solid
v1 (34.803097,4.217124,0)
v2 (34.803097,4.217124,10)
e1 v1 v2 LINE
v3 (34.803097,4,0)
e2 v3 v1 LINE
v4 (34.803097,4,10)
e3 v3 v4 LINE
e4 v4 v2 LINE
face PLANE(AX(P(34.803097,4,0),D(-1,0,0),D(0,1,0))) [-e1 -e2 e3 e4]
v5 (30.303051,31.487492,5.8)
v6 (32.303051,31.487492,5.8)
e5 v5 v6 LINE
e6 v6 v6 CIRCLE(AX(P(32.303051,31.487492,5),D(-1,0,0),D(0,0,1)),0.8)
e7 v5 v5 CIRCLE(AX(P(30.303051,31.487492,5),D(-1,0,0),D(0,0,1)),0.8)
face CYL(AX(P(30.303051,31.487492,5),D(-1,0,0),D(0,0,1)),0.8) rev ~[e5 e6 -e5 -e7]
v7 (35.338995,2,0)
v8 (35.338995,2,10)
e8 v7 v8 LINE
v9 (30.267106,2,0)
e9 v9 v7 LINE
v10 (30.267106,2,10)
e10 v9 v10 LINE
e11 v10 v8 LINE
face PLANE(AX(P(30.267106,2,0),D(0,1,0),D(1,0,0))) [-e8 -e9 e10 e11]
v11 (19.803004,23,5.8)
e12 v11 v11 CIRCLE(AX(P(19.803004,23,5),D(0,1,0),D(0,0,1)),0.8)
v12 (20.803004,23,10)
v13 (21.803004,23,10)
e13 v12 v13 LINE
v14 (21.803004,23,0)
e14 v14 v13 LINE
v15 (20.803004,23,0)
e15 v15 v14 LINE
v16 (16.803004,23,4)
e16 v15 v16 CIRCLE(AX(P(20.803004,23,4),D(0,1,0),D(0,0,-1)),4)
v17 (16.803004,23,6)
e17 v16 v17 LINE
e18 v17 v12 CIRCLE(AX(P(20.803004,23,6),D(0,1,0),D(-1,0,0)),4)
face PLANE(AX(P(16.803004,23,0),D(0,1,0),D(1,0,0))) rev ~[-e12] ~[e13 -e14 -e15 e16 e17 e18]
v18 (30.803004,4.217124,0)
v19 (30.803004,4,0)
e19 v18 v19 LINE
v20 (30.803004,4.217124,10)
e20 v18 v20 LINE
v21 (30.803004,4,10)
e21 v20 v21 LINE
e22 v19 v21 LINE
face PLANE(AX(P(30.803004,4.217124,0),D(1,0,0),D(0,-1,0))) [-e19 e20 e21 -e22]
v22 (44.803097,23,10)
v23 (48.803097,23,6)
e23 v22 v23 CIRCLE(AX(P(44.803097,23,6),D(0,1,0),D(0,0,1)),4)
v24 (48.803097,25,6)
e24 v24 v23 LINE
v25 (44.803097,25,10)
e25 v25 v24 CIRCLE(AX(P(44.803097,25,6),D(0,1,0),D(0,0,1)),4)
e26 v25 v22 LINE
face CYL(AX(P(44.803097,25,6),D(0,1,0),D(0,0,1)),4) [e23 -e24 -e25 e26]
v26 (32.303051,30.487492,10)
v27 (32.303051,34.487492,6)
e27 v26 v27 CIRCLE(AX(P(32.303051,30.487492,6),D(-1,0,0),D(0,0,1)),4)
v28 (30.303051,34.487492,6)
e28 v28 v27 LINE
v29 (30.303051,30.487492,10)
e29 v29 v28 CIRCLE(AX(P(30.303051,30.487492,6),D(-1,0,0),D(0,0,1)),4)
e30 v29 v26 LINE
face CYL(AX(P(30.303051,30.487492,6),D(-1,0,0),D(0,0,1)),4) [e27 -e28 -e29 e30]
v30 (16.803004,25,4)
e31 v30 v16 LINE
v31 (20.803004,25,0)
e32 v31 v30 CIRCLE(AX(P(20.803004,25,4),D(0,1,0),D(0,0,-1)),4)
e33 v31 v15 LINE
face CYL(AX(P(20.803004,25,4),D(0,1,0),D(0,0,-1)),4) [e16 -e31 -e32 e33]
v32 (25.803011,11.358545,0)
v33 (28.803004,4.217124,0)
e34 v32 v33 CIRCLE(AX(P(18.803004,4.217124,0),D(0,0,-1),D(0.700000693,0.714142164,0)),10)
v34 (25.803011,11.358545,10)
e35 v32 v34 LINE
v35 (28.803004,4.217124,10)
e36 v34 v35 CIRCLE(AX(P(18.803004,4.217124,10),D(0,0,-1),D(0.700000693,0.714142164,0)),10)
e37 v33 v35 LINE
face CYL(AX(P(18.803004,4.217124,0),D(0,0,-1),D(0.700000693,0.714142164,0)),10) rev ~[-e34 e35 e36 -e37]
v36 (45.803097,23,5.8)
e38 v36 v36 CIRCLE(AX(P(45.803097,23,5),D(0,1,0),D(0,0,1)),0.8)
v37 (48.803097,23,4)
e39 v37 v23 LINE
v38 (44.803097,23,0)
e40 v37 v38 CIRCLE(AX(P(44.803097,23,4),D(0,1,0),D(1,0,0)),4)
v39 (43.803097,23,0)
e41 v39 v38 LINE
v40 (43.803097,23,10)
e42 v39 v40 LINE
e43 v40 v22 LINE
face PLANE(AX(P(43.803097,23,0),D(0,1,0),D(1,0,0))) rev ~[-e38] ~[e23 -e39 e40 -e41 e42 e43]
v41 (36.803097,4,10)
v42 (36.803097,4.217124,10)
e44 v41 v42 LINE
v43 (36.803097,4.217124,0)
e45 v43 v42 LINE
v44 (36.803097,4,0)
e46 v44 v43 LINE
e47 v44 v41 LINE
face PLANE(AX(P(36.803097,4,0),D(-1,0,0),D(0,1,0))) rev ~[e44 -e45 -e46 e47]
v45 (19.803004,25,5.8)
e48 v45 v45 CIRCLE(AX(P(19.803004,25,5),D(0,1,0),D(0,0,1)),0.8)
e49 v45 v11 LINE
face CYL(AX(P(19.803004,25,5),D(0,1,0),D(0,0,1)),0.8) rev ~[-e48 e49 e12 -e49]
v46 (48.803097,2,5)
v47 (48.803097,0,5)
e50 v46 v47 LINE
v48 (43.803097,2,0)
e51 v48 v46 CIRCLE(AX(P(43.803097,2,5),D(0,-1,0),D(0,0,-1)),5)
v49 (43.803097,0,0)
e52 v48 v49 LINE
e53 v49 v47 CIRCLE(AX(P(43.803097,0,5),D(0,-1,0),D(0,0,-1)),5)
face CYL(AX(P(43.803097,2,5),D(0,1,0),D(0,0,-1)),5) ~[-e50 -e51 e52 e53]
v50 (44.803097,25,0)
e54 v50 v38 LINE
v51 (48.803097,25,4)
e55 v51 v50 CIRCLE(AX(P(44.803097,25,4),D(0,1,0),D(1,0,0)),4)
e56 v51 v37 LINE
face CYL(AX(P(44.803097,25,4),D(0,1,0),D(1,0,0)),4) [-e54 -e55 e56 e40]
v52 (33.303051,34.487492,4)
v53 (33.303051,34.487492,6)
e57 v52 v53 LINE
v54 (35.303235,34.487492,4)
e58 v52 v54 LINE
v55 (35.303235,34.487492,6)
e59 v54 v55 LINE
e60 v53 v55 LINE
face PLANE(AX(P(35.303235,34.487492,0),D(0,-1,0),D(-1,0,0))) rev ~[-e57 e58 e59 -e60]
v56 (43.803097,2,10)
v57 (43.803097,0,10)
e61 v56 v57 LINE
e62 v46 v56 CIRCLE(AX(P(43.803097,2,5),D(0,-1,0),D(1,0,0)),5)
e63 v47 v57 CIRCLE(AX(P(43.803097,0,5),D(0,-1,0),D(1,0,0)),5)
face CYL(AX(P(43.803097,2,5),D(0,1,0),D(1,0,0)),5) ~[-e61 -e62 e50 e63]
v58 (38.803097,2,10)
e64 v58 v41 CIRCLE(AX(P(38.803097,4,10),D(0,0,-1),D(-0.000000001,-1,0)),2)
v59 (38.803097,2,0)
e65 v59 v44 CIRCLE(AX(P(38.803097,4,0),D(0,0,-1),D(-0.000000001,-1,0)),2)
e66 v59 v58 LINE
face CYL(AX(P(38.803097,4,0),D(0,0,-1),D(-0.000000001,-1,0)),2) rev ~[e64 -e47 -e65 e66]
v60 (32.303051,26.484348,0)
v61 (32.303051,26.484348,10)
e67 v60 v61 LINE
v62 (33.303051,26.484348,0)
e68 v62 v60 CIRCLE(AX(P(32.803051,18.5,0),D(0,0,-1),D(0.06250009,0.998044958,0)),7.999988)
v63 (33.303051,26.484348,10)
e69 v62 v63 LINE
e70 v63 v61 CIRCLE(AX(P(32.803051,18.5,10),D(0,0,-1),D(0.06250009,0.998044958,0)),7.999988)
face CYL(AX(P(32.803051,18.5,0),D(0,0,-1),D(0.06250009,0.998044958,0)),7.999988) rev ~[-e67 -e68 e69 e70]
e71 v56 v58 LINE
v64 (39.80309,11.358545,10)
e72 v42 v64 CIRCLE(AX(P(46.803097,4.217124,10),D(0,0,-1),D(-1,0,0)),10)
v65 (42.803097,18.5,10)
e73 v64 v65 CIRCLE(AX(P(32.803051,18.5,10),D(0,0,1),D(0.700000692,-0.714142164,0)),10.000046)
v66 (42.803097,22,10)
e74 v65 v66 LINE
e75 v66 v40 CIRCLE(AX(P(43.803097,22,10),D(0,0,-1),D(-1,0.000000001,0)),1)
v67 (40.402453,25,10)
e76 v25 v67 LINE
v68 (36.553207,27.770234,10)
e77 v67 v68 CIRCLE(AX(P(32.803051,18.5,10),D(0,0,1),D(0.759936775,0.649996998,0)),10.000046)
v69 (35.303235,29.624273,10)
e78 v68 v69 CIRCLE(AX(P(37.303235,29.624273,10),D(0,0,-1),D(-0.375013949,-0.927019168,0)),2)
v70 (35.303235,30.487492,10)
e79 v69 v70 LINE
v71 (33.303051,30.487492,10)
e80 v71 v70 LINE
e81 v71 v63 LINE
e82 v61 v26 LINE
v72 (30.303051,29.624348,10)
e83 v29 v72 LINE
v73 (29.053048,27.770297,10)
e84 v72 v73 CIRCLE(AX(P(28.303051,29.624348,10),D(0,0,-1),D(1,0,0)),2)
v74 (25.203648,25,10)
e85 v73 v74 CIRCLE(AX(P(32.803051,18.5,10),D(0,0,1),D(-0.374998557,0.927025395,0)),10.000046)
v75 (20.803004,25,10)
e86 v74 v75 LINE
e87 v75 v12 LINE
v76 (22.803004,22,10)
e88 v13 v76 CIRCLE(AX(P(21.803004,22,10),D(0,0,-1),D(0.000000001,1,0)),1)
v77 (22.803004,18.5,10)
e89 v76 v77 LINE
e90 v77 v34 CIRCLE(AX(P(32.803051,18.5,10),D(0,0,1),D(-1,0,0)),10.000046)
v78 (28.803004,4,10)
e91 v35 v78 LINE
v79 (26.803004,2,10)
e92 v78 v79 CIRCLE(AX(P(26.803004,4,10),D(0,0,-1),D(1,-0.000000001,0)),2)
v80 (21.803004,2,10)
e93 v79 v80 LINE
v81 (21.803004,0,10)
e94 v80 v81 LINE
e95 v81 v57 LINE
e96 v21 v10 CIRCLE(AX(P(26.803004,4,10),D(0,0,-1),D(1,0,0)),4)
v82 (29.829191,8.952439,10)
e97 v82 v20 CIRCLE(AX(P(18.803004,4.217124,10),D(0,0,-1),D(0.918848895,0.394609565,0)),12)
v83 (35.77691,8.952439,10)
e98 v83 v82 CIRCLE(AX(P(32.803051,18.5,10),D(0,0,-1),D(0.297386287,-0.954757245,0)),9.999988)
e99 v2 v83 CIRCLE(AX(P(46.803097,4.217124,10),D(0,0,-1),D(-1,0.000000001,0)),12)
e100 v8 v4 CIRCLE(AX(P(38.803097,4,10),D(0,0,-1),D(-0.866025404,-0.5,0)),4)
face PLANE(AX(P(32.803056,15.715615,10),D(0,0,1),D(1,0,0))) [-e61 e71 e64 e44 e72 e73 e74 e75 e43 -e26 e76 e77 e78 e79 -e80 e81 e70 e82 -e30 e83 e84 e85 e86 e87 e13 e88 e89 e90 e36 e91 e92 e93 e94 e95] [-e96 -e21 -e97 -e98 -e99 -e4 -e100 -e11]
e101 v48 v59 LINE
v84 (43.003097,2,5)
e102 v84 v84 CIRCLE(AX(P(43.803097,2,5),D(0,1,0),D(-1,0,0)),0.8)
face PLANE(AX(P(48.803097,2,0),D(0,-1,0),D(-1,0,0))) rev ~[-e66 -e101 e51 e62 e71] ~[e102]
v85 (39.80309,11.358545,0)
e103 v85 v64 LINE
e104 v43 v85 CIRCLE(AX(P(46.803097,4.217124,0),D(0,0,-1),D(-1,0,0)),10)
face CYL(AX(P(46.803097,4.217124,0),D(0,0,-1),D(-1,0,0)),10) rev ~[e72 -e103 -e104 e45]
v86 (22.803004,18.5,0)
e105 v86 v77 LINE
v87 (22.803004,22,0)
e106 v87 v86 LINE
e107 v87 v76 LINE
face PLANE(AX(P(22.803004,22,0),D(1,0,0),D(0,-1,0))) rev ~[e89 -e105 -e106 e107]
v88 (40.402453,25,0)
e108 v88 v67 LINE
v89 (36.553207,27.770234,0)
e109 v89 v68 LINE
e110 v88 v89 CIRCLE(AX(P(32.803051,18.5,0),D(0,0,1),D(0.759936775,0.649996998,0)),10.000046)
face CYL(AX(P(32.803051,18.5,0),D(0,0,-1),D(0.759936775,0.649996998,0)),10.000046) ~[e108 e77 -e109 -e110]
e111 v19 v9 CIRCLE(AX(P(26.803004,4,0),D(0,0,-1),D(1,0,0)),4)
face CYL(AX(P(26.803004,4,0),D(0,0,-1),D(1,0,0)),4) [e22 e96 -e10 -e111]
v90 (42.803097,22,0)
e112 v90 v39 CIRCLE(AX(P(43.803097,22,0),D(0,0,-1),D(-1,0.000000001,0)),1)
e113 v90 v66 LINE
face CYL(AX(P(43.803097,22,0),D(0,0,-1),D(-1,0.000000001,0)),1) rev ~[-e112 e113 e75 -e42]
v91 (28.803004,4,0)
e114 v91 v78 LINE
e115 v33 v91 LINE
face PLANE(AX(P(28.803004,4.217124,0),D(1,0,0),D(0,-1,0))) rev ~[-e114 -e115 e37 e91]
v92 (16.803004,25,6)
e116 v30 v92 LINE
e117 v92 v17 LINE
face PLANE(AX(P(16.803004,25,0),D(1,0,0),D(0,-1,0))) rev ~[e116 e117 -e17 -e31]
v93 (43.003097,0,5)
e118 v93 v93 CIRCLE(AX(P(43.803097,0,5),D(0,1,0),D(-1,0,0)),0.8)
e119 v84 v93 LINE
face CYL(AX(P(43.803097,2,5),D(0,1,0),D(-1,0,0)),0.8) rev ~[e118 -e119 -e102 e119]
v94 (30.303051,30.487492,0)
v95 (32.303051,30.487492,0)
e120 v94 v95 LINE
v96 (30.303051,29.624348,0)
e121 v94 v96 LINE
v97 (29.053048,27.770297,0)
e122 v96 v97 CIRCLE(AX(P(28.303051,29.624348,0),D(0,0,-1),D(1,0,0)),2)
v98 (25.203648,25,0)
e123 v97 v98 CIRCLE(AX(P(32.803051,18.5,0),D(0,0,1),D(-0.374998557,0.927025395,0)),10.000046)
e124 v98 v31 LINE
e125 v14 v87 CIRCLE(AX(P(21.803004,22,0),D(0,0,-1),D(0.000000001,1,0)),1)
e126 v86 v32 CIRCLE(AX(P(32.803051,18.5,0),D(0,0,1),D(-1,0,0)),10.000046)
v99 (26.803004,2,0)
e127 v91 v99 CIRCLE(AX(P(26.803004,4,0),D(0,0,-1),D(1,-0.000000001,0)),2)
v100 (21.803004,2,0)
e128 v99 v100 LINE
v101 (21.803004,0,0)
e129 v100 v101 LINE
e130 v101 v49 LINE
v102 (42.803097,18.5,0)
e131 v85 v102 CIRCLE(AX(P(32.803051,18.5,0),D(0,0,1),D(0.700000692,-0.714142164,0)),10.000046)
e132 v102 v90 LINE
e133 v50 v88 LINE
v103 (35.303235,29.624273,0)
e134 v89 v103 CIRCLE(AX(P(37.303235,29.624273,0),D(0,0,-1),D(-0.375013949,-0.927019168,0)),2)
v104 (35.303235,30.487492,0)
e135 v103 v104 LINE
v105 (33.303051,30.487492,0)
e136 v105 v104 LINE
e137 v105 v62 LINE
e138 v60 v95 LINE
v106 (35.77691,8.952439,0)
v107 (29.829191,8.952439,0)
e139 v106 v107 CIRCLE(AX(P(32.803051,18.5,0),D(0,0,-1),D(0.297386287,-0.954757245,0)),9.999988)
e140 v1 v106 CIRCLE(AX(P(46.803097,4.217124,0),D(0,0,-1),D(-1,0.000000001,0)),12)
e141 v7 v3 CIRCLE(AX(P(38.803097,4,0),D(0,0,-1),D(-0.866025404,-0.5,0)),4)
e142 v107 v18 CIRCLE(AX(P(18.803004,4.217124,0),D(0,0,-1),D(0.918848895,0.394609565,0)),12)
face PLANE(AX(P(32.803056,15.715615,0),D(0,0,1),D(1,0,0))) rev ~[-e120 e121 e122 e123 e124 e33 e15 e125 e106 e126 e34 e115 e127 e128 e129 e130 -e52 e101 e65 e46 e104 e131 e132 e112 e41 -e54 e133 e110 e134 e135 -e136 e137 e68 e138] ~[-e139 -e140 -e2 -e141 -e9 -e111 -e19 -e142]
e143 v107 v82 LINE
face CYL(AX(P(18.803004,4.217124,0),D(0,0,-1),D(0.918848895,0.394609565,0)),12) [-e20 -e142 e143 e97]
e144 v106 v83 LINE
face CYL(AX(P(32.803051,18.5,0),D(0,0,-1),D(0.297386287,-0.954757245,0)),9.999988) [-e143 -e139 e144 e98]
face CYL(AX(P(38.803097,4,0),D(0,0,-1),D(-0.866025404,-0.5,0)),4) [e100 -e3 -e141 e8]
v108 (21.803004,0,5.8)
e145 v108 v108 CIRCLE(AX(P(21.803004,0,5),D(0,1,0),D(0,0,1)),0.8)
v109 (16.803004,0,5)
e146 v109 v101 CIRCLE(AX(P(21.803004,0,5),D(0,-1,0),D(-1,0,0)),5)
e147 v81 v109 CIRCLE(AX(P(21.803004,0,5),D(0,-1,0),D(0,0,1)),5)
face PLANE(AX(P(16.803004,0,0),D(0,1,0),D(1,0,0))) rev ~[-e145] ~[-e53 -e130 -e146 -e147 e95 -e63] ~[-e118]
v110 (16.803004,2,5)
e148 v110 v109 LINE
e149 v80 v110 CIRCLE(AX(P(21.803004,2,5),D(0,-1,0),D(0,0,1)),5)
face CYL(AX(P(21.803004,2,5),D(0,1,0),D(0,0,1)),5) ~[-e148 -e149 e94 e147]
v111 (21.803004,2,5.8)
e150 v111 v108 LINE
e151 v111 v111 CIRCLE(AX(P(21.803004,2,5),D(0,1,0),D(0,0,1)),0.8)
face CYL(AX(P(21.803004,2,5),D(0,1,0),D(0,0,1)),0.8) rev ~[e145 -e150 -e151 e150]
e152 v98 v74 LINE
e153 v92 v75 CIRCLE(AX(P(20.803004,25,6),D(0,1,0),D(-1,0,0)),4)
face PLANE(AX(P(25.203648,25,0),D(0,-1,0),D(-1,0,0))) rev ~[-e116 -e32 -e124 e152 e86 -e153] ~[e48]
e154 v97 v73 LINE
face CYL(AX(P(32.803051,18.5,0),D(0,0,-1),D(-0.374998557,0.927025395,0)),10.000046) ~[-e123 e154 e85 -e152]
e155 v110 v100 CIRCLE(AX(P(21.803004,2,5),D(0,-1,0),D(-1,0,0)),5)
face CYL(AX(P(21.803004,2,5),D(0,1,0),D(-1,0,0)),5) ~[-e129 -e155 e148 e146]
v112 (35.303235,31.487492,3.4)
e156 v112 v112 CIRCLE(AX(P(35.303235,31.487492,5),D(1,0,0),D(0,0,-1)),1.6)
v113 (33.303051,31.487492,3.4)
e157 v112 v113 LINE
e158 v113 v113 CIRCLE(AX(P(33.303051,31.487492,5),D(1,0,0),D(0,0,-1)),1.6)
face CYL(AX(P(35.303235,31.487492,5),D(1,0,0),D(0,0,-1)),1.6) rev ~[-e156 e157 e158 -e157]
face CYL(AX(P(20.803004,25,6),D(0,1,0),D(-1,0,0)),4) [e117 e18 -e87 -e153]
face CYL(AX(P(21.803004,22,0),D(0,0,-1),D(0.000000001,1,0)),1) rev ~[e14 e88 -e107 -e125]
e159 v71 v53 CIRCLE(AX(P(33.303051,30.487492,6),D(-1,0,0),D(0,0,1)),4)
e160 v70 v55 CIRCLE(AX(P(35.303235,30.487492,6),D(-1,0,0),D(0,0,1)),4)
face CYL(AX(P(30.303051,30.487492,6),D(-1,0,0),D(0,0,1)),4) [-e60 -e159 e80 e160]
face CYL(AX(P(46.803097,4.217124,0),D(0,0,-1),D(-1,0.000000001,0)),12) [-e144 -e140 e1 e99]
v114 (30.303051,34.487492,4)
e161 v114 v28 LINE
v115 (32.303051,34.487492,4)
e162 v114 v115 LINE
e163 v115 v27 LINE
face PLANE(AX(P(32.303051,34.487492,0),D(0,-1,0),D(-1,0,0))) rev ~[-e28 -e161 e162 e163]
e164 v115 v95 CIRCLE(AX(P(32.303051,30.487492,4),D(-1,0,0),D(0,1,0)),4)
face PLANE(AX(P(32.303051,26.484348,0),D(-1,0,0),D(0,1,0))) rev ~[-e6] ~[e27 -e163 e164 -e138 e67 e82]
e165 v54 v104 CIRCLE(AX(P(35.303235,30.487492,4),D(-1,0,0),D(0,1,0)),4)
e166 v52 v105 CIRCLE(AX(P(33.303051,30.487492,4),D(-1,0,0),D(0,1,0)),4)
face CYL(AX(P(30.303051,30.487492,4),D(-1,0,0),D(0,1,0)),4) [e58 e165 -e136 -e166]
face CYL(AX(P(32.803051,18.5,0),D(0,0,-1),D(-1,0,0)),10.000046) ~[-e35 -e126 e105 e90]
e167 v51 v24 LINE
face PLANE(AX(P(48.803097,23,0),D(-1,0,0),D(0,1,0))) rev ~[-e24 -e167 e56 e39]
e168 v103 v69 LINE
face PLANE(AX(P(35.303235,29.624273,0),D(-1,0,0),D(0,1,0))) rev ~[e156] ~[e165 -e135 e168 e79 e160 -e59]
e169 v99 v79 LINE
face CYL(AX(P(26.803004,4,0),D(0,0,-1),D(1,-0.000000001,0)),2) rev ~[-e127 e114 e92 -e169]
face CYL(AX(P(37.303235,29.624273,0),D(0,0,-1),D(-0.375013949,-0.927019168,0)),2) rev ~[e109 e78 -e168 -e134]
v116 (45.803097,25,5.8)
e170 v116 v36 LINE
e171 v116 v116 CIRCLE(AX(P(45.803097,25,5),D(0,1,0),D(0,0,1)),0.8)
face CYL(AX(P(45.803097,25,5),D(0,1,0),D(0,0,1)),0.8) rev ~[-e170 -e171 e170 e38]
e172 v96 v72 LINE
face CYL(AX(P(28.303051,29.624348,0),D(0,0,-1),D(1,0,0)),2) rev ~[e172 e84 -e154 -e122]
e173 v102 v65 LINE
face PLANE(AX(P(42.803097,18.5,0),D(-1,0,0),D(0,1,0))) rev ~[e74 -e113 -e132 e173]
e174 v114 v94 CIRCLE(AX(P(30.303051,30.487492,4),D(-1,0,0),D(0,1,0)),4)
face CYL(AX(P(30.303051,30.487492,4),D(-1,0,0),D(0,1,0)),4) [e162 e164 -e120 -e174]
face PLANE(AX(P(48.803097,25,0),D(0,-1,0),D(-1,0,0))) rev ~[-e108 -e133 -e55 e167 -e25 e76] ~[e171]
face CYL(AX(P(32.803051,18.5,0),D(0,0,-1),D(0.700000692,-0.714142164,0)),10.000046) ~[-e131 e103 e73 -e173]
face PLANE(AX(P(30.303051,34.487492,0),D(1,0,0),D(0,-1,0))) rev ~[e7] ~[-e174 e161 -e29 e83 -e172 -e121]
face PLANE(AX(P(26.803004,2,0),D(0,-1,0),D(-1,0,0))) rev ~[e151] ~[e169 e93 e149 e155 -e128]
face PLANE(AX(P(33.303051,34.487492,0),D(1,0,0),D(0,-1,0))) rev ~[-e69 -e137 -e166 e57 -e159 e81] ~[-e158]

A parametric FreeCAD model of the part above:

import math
import FreeCAD as App
import Part
import Sketcher

V = App.Vector
Q = App.Units.Quantity

doc = App.newDocument("Part")
body = doc.addObject("PartDesign::Body", "Body")

# Sketch on XY plane
sketch1 = body.newObject("Sketcher::SketchObject", "Sketch")
sketch1.AttachmentSupport = (doc.getObject("XY_Plane"), [""])
sketch1.MapMode = "FlatFace"
sketch1.addGeometry([
    Part.LineSegment(V(16.8, 0, 0), V(48.8, 0, 0)),  # 0
    Part.LineSegment(V(48.8, 0, 0), V(48.8, 2, 0)),  # 1
    Part.LineSegment(V(48.8, 2, 0), V(38.8, 2, 0)),  # 2
    Part.ArcOfCircle(Part.Circle(V(38.8, 4, 0), V(0, 0, 1), 2), math.radians(-180), math.radians(-90)),  # 3
    Part.LineSegment(V(36.8, 4, 0), V(36.8, 4.22, 0)),  # 4
    Part.ArcOfCircle(Part.Circle(V(46.8, 4.22, 0), V(0, 0, 1), 10), math.radians(134), math.radians(180)),  # 5
    Part.ArcOfCircle(Part.Circle(V(32.8, 18.5, 0), V(0, 0, 1), 10), math.radians(-46), math.radians(0)),  # 6
    Part.LineSegment(V(42.8, 18.5, 0), V(42.8, 22, 0)),  # 7
    Part.ArcOfCircle(Part.Circle(V(43.8, 22, 0), V(0, 0, 1), 1), math.radians(90), math.radians(180)),  # 8
    Part.LineSegment(V(43.8, 23, 0), V(48.8, 23, 0)),  # 9
    Part.LineSegment(V(48.8, 23, 0), V(48.8, 25, 0)),  # 10
    Part.LineSegment(V(48.8, 25, 0), V(40.4, 25, 0)),  # 11
    Part.ArcOfCircle(Part.Circle(V(32.8, 18.5, 0), V(0, 0, 1), 10), math.radians(41), math.radians(68)),  # 12
    Part.ArcOfCircle(Part.Circle(V(37.3, 29.62, 0), V(0, 0, 1), 2), math.radians(180), math.radians(248)),  # 13
    Part.LineSegment(V(35.3, 29.62, 0), V(35.3, 34.49, 0)),  # 14
    Part.LineSegment(V(35.3, 34.49, 0), V(33.3, 34.49, 0)),  # 15
    Part.LineSegment(V(33.3, 34.49, 0), V(33.3, 26.48, 0)),  # 16
    Part.ArcOfCircle(Part.Circle(V(32.8, 18.5, 0), V(0, 0, 1), 8), math.radians(94), math.radians(446)),  # 17
    Part.LineSegment(V(32.3, 26.48, 0), V(32.3, 34.49, 0)),  # 18
    Part.LineSegment(V(32.3, 34.49, 0), V(30.3, 34.49, 0)),  # 19
    Part.LineSegment(V(30.3, 34.49, 0), V(30.3, 29.62, 0)),  # 20
    Part.ArcOfCircle(Part.Circle(V(28.3, 29.62, 0), V(0, 0, 1), 2), math.radians(-68), math.radians(0)),  # 21
    Part.ArcOfCircle(Part.Circle(V(32.8, 18.5, 0), V(0, 0, 1), 10), math.radians(112), math.radians(139)),  # 22
    Part.LineSegment(V(25.2, 25, 0), V(16.8, 25, 0)),  # 23
    Part.LineSegment(V(16.8, 25, 0), V(16.8, 23, 0)),  # 24
    Part.LineSegment(V(16.8, 23, 0), V(21.8, 23, 0)),  # 25
    Part.ArcOfCircle(Part.Circle(V(21.8, 22, 0), V(0, 0, 1), 1), math.radians(0), math.radians(90)),  # 26
    Part.LineSegment(V(22.8, 22, 0), V(22.8, 18.5, 0)),  # 27
    Part.ArcOfCircle(Part.Circle(V(32.8, 18.5, 0), V(0, 0, 1), 10), math.radians(180), math.radians(226)),  # 28
    Part.ArcOfCircle(Part.Circle(V(18.8, 4.22, 0), V(0, 0, 1), 10), math.radians(0), math.radians(46)),  # 29
    Part.LineSegment(V(28.8, 4.22, 0), V(28.8, 4, 0)),  # 30
    Part.ArcOfCircle(Part.Circle(V(26.8, 4, 0), V(0, 0, 1), 2), math.radians(-90), math.radians(0)),  # 31
    Part.LineSegment(V(26.8, 2, 0), V(16.8, 2, 0)),  # 32
    Part.LineSegment(V(16.8, 2, 0), V(16.8, 0, 0)),  # 33
    Part.LineSegment(V(34.8, 4.22, 0), V(34.8, 4, 0)),  # 34
    Part.ArcOfCircle(Part.Circle(V(38.8, 4, 0), V(0, 0, 1), 4), math.radians(-180), math.radians(-150)),  # 35
    Part.LineSegment(V(35.34, 2, 0), V(30.27, 2, 0)),  # 36
    Part.ArcOfCircle(Part.Circle(V(26.8, 4, 0), V(0, 0, 1), 4), math.radians(-30), math.radians(0)),  # 37
    Part.LineSegment(V(30.8, 4, 0), V(30.8, 4.22, 0)),  # 38
    Part.ArcOfCircle(Part.Circle(V(18.8, 4.22, 0), V(0, 0, 1), 12), math.radians(0), math.radians(23)),  # 39
    Part.ArcOfCircle(Part.Circle(V(32.8, 18.5, 0), V(0, 0, 1), 10), math.radians(-107), math.radians(-73)),  # 40
    Part.ArcOfCircle(Part.Circle(V(46.8, 4.22, 0), V(0, 0, 1), 12), math.radians(157), math.radians(180)),  # 41
], False)
sketch1.addConstraint([
    Sketcher.Constraint("Coincident", 0, 2, 1, 1),
    Sketcher.Constraint("Coincident", 1, 2, 2, 1),
    Sketcher.Constraint("Tangent", 2, 2, 3, 2),
    Sketcher.Constraint("Tangent", 3, 1, 4, 1),
    Sketcher.Constraint("Tangent", 4, 2, 5, 2),
    Sketcher.Constraint("Tangent", 5, 1, 6, 1),
    Sketcher.Constraint("Tangent", 6, 2, 7, 1),
    Sketcher.Constraint("Tangent", 7, 2, 8, 2),
    Sketcher.Constraint("Tangent", 8, 1, 9, 1),
    Sketcher.Constraint("Coincident", 9, 2, 10, 1),
    Sketcher.Constraint("Coincident", 10, 2, 11, 1),
    Sketcher.Constraint("Coincident", 11, 2, 12, 1),
    Sketcher.Constraint("Tangent", 12, 2, 13, 2),
    Sketcher.Constraint("Tangent", 13, 1, 14, 1),
    Sketcher.Constraint("Coincident", 14, 2, 15, 1),
    Sketcher.Constraint("Coincident", 15, 2, 16, 1),
    Sketcher.Constraint("Coincident", 16, 2, 17, 2),
    Sketcher.Constraint("Coincident", 17, 1, 18, 1),
    Sketcher.Constraint("Coincident", 18, 2, 19, 1),
    Sketcher.Constraint("Coincident", 19, 2, 20, 1),
    Sketcher.Constraint("Tangent", 20, 2, 21, 2),
    Sketcher.Constraint("Tangent", 21, 1, 22, 1),
    Sketcher.Constraint("Coincident", 22, 2, 23, 1),
    Sketcher.Constraint("Coincident", 23, 2, 24, 1),
    Sketcher.Constraint("Coincident", 24, 2, 25, 1),
    Sketcher.Constraint("Tangent", 25, 2, 26, 2),
    Sketcher.Constraint("Tangent", 26, 1, 27, 1),
    Sketcher.Constraint("Tangent", 27, 2, 28, 1),
    Sketcher.Constraint("Tangent", 28, 2, 29, 2),
    Sketcher.Constraint("Tangent", 29, 1, 30, 1),
    Sketcher.Constraint("Tangent", 30, 2, 31, 2),
    Sketcher.Constraint("Tangent", 31, 1, 32, 1),
    Sketcher.Constraint("Coincident", 32, 2, 33, 1),
    Sketcher.Constraint("Coincident", 33, 2, 0, 1),
    Sketcher.Constraint("Tangent", 34, 2, 35, 1),
    Sketcher.Constraint("Coincident", 35, 2, 36, 1),
    Sketcher.Constraint("Coincident", 36, 2, 37, 1),
    Sketcher.Constraint("Tangent", 37, 2, 38, 1),
    Sketcher.Constraint("Tangent", 38, 2, 39, 1),
    Sketcher.Constraint("Coincident", 39, 2, 40, 1),
    Sketcher.Constraint("Coincident", 40, 2, 41, 1),
    Sketcher.Constraint("Tangent", 41, 2, 34, 1),
    Sketcher.Constraint("Horizontal", 0),
    Sketcher.Constraint("Vertical", 1),
    Sketcher.Constraint("Horizontal", 2),
    Sketcher.Constraint("Vertical", 4),
    Sketcher.Constraint("Vertical", 7),
    Sketcher.Constraint("Horizontal", 9),
    Sketcher.Constraint("Vertical", 10),
    Sketcher.Constraint("Horizontal", 11),
    Sketcher.Constraint("Vertical", 14),
    Sketcher.Constraint("Horizontal", 15),
    Sketcher.Constraint("Vertical", 16),
    Sketcher.Constraint("Vertical", 18),
    Sketcher.Constraint("Horizontal", 19),
    Sketcher.Constraint("Vertical", 20),
    Sketcher.Constraint("Horizontal", 23),
    Sketcher.Constraint("Vertical", 24),
    Sketcher.Constraint("Horizontal", 25),
    Sketcher.Constraint("Vertical", 27),
    Sketcher.Constraint("Vertical", 30),
    Sketcher.Constraint("Horizontal", 32),
    Sketcher.Constraint("Vertical", 33),
    Sketcher.Constraint("Vertical", 34),
    Sketcher.Constraint("Horizontal", 36),
    Sketcher.Constraint("Vertical", 38),
    Sketcher.Constraint("Coincident", 12, 3, 6, 3),
    Sketcher.Constraint("Coincident", 17, 3, 6, 3),
    Sketcher.Constraint("Coincident", 22, 3, 6, 3),
    Sketcher.Constraint("Coincident", 28, 3, 6, 3),
    Sketcher.Constraint("Coincident", 35, 3, 3, 3),
    Sketcher.Constraint("Coincident", 37, 3, 31, 3),
    Sketcher.Constraint("Coincident", 39, 3, 29, 3),
    Sketcher.Constraint("Coincident", 40, 3, 6, 3),
    Sketcher.Constraint("Coincident", 41, 3, 5, 3),
    Sketcher.Constraint("Equal", 6, 12),
    Sketcher.Constraint("Equal", 3, 13),
    Sketcher.Constraint("Equal", 13, 21),
    Sketcher.Constraint("Equal", 12, 22),
    Sketcher.Constraint("Equal", 8, 26),
    Sketcher.Constraint("Equal", 22, 28),
    Sketcher.Constraint("Equal", 5, 29),
    Sketcher.Constraint("Equal", 21, 31),
    Sketcher.Constraint("Equal", 35, 37),
    Sketcher.Constraint("PointOnObject", 0, 2, -1),
    Sketcher.Constraint("Horizontal", 8, 3, 26, 3),
    Sketcher.Constraint("Horizontal", 5, 3, 29, 3),
    Sketcher.Constraint("Horizontal", 3, 3, 31, 3),
    Sketcher.Constraint("Horizontal", 16, 2, 17, 1),
    Sketcher.Constraint("Horizontal", 15, 2, 18, 2),
    Sketcher.Constraint("Horizontal", 11, 2, 22, 2),
    Sketcher.Constraint("Horizontal", 32, 2, 35, 2),
    Sketcher.Constraint("Vertical", 1, 2, 9, 2),
    Sketcher.Constraint("Vertical", 24, 2, 32, 2),
    Sketcher.Constraint("Equal", 11, 23),
    Sketcher.Constraint("Equal", 19, 1),
    Sketcher.Constraint("Equal", 1, 10),
    Sketcher.Constraint("Radius", 3, Q("2 mm")),
    Sketcher.Constraint("Radius", 5, Q("10 mm")),
    Sketcher.Constraint("Radius", 8, Q("1 mm")),
    Sketcher.Constraint("Radius", 35, Q("4 mm")),
    Sketcher.Constraint("DistanceX", 2, 2, 2, 1, Q("10 mm")),
    Sketcher.Constraint("DistanceX", 9, 1, 9, 2, Q("5 mm")),
    Sketcher.Constraint("DistanceX", 19, 2, 19, 1, Q("2 mm")),
    Sketcher.Constraint("DistanceY", 7, 1, 7, 2, Q("3.5 mm")),
    Sketcher.Constraint("DistanceY", -1, 1, 8, 3, Q("22 mm")),
    Sketcher.Constraint("DistanceX", 21, 3, 15, 2, Q("5 mm")),
    Sketcher.Constraint("Radius", 17, Q("7.999988 mm")),
    Sketcher.Constraint("Radius", 40, Q("9.999988 mm")),
    Sketcher.Constraint("DistanceY", 16, 2, 21, 3, Q("3.139999 mm")),
    Sketcher.Constraint("DistanceY", 14, 1, 14, 2, Q("4.863219 mm")),
    Sketcher.Constraint("DistanceX", 15, 2, 15, 1, Q("2.000185 mm")),
    Sketcher.Constraint("DistanceX", -1, 1, 6, 3, Q("32.803051 mm")),
])
pad1 = body.newObject("PartDesign::Pad", "Pad")
pad1.Profile = sketch1
pad1.Length = 10

# Sketch on XZ plane
sketch2 = body.newObject("Sketcher::SketchObject", "Sketch001")
sketch2.AttachmentSupport = (doc.getObject("XZ_Plane"), [""])
sketch2.MapMode = "FlatFace"
sketch2.AttachmentOffset = App.Placement(V(0, 0, -2), App.Rotation())
sketch2.addGeometry([
    Part.ArcOfCircle(Part.Circle(V(43.8, 5, 0), V(0, 0, 1), 5), math.radians(0), math.radians(90)),  # 0
    Part.LineSegment(V(43.8, 10, 0), V(48.8, 10, 0)),  # 1
    Part.LineSegment(V(48.8, 10, 0), V(48.8, 5, 0)),  # 2
    Part.ArcOfCircle(Part.Circle(V(43.8, 5, 0), V(0, 0, 1), 5), math.radians(-90), math.radians(0)),  # 3
    Part.LineSegment(V(48.8, 5, 0), V(48.8, 0, 0)),  # 4
    Part.LineSegment(V(48.8, 0, 0), V(43.8, 0, 0)),  # 5
    Part.Circle(V(43.8, 5, 0), V(0, 0, 1), 0.8),  # 6
], False)
sketch2.addConstraint([
    Sketcher.Constraint("Tangent", 0, 2, 1, 1),
    Sketcher.Constraint("Coincident", 1, 2, 2, 1),
    Sketcher.Constraint("Tangent", 2, 2, 0, 1),
    Sketcher.Constraint("Tangent", 3, 2, 4, 1),
    Sketcher.Constraint("Coincident", 4, 2, 5, 1),
    Sketcher.Constraint("Tangent", 5, 2, 3, 1),
    Sketcher.Constraint("Horizontal", 1),
    Sketcher.Constraint("Vertical", 2),
    Sketcher.Constraint("Vertical", 4),
    Sketcher.Constraint("Horizontal", 5),
    Sketcher.Constraint("Coincident", 3, 3, 0, 3),
    Sketcher.Constraint("Coincident", 6, 3, 0, 3),
    Sketcher.Constraint("Equal", 0, 3),
    Sketcher.Constraint("PointOnObject", 4, 2, -1),
    Sketcher.Constraint("Radius", 0, Q("5 mm")),
    Sketcher.Constraint("Diameter", 6, Q("1.6 mm")),
    Sketcher.Constraint("DistanceX", -1, 1, 0, 3, Q("43.803097 mm")),
])
pocket1 = body.newObject("PartDesign::Pocket", "Pocket")
pocket1.Profile = sketch2
pocket1.Length = 2
pocket1.Reversed = True

# Sketch on XZ plane
sketch3 = body.newObject("Sketcher::SketchObject", "Sketch002")
sketch3.AttachmentSupport = (doc.getObject("XZ_Plane"), [""])
sketch3.MapMode = "FlatFace"
sketch3.AttachmentOffset = App.Placement(V(0, 0, -2), App.Rotation())
sketch3.addGeometry([
    Part.LineSegment(V(16.8, 10, 0), V(21.8, 10, 0)),  # 0
    Part.ArcOfCircle(Part.Circle(V(21.8, 5, 0), V(0, 0, 1), 5), math.radians(90), math.radians(180)),  # 1
    Part.LineSegment(V(16.8, 5, 0), V(16.8, 10, 0)),  # 2
    Part.LineSegment(V(16.8, 0, 0), V(16.8, 5, 0)),  # 3
    Part.ArcOfCircle(Part.Circle(V(21.8, 5, 0), V(0, 0, 1), 5), math.radians(180), math.radians(270)),  # 4
    Part.LineSegment(V(21.8, 0, 0), V(16.8, 0, 0)),  # 5
    Part.Circle(V(21.8, 5, 0), V(0, 0, 1), 0.8),  # 6
], False)
sketch3.addConstraint([
    Sketcher.Constraint("Tangent", 0, 2, 1, 1),
    Sketcher.Constraint("Tangent", 1, 2, 2, 1),
    Sketcher.Constraint("Coincident", 2, 2, 0, 1),
    Sketcher.Constraint("Tangent", 3, 2, 4, 1),
    Sketcher.Constraint("Tangent", 4, 2, 5, 1),
    Sketcher.Constraint("Coincident", 5, 2, 3, 1),
    Sketcher.Constraint("Horizontal", 0),
    Sketcher.Constraint("Vertical", 2),
    Sketcher.Constraint("Vertical", 3),
    Sketcher.Constraint("Horizontal", 5),
    Sketcher.Constraint("Coincident", 4, 3, 1, 3),
    Sketcher.Constraint("Coincident", 6, 3, 1, 3),
    Sketcher.Constraint("Equal", 1, 4),
    Sketcher.Constraint("PointOnObject", 4, 2, -1),
    Sketcher.Constraint("Radius", 1, Q("5 mm")),
    Sketcher.Constraint("Diameter", 6, Q("1.6 mm")),
    Sketcher.Constraint("DistanceX", -1, 1, 1, 3, Q("21.803004 mm")),
])
pocket2 = body.newObject("PartDesign::Pocket", "Pocket001")
pocket2.Profile = sketch3
pocket2.Length = 2
pocket2.Reversed = True

# Sketch on XZ plane
sketch4 = body.newObject("Sketcher::SketchObject", "Sketch003")
sketch4.AttachmentSupport = (doc.getObject("XZ_Plane"), [""])
sketch4.MapMode = "FlatFace"
sketch4.AttachmentOffset = App.Placement(V(0, 0, -25), App.Rotation())
sketch4.addGeometry([
    Part.Circle(V(19.8, 5, 0), V(0, 0, 1), 0.8),  # 0
    Part.Circle(V(45.8, 5, 0), V(0, 0, 1), 0.8),  # 1
    Part.LineSegment(V(16.8, 10, 0), V(20.8, 10, 0)),  # 2
    Part.ArcOfCircle(Part.Circle(V(20.8, 6, 0), V(0, 0, 1), 4), math.radians(90), math.radians(180)),  # 3
    Part.LineSegment(V(16.8, 6, 0), V(16.8, 10, 0)),  # 4
    Part.LineSegment(V(16.8, 0, 0), V(16.8, 4, 0)),  # 5
    Part.ArcOfCircle(Part.Circle(V(20.8, 4, 0), V(0, 0, 1), 4), math.radians(180), math.radians(270)),  # 6
    Part.LineSegment(V(20.8, 0, 0), V(16.8, 0, 0)),  # 7
    Part.LineSegment(V(48.8, 0, 0), V(44.8, 0, 0)),  # 8
    Part.ArcOfCircle(Part.Circle(V(44.8, 4, 0), V(0, 0, 1), 4), math.radians(-90), math.radians(0)),  # 9
    Part.LineSegment(V(48.8, 4, 0), V(48.8, 0, 0)),  # 10
    Part.LineSegment(V(48.8, 10, 0), V(48.8, 6, 0)),  # 11
    Part.ArcOfCircle(Part.Circle(V(44.8, 6, 0), V(0, 0, 1), 4), math.radians(0), math.radians(90)),  # 12
    Part.LineSegment(V(44.8, 10, 0), V(48.8, 10, 0)),  # 13
], False)
sketch4.addConstraint([
    Sketcher.Constraint("Tangent", 2, 2, 3, 1),
    Sketcher.Constraint("Tangent", 3, 2, 4, 1),
    Sketcher.Constraint("Coincident", 4, 2, 2, 1),
    Sketcher.Constraint("Tangent", 5, 2, 6, 1),
    Sketcher.Constraint("Tangent", 6, 2, 7, 1),
    Sketcher.Constraint("Coincident", 7, 2, 5, 1),
    Sketcher.Constraint("Tangent", 8, 2, 9, 1),
    Sketcher.Constraint("Tangent", 9, 2, 10, 1),
    Sketcher.Constraint("Coincident", 10, 2, 8, 1),
    Sketcher.Constraint("Tangent", 11, 2, 12, 1),
    Sketcher.Constraint("Tangent", 12, 2, 13, 1),
    Sketcher.Constraint("Coincident", 13, 2, 11, 1),
    Sketcher.Constraint("Horizontal", 2),
    Sketcher.Constraint("Vertical", 4),
    Sketcher.Constraint("Vertical", 5),
    Sketcher.Constraint("Horizontal", 7),
    Sketcher.Constraint("Horizontal", 8),
    Sketcher.Constraint("Vertical", 10),
    Sketcher.Constraint("Vertical", 11),
    Sketcher.Constraint("Horizontal", 13),
    Sketcher.Constraint("Equal", 0, 1),
    Sketcher.Constraint("Equal", 3, 6),
    Sketcher.Constraint("Equal", 6, 9),
    Sketcher.Constraint("Equal", 9, 12),
    Sketcher.Constraint("PointOnObject", 6, 2, -1),
    Sketcher.Constraint("PointOnObject", 8, 2, -1),
    Sketcher.Constraint("Horizontal", 0, 3, 1, 3),
    Sketcher.Constraint("Horizontal", 3, 3, 12, 3),
    Sketcher.Constraint("Vertical", 3, 3, 6, 3),
    Sketcher.Constraint("Vertical", 9, 3, 12, 3),
    Sketcher.Constraint("Radius", 3, Q("4 mm")),
    Sketcher.Constraint("Diameter", 0, Q("1.6 mm")),
    Sketcher.Constraint("DistanceY", -1, 1, 0, 3, Q("5 mm")),
    Sketcher.Constraint("DistanceY", -1, 1, 3, 3, Q("6 mm")),
    Sketcher.Constraint("DistanceX", 0, 3, 3, 3, Q("1 mm")),
    Sketcher.Constraint("DistanceX", 9, 3, 1, 3, Q("1 mm")),
    Sketcher.Constraint("DistanceX", -1, 1, 0, 3, Q("19.803004 mm")),
    Sketcher.Constraint("DistanceX", -1, 1, 1, 3, Q("45.803097 mm")),
])
pocket3 = body.newObject("PartDesign::Pocket", "Pocket002")
pocket3.Profile = sketch4
pocket3.Length = 2
pocket3.Reversed = True

# Sketch on YZ plane
sketch5 = body.newObject("Sketcher::SketchObject", "Sketch004")
sketch5.AttachmentSupport = (doc.getObject("YZ_Plane"), [""])
sketch5.MapMode = "FlatFace"
sketch5.AttachmentOffset = App.Placement(V(0, 0, 30.303051), App.Rotation())
sketch5.addGeometry(Part.Circle(V(31.5, 5, 0), V(0, 0, 1), 0.8), False)
sketch5.addConstraint([
    Sketcher.Constraint("Diameter", 0, Q("1.6 mm")),
    Sketcher.Constraint("DistanceY", -1, 1, 0, 3, Q("5 mm")),
    Sketcher.Constraint("DistanceX", -1, 1, 0, 3, Q("31.487492 mm")),
])
pocket4 = body.newObject("PartDesign::Pocket", "Pocket003")
pocket4.Profile = sketch5
pocket4.Length = 3
pocket4.Reversed = True

# Sketch on YZ plane
sketch6 = body.newObject("Sketcher::SketchObject", "Sketch005")
sketch6.AttachmentSupport = (doc.getObject("YZ_Plane"), [""])
sketch6.MapMode = "FlatFace"
sketch6.AttachmentOffset = App.Placement(V(0, 0, 35.303235), App.Rotation())
sketch6.addGeometry(Part.Circle(V(31.5, 5, 0), V(0, 0, 1), 1.6), False)
sketch6.addConstraint([
    Sketcher.Constraint("Diameter", 0, Q("3.2 mm")),
    Sketcher.Constraint("DistanceY", -1, 1, 0, 3, Q("5 mm")),
    Sketcher.Constraint("DistanceX", -1, 1, 0, 3, Q("31.487492 mm")),
])
pocket5 = body.newObject("PartDesign::Pocket", "Pocket004")
pocket5.Profile = sketch6
pocket5.Length = 3

# Sketch on YZ plane
sketch7 = body.newObject("Sketcher::SketchObject", "Sketch006")
sketch7.AttachmentSupport = (doc.getObject("YZ_Plane"), [""])
sketch7.MapMode = "FlatFace"
sketch7.AttachmentOffset = App.Placement(V(0, 0, 30.303051), App.Rotation())
sketch7.addGeometry([
    Part.LineSegment(V(34.5, 0, 0), V(30.5, 0, 0)),  # 0
    Part.ArcOfCircle(Part.Circle(V(30.5, 4, 0), V(0, 0, 1), 4), math.radians(-90), math.radians(0)),  # 1
    Part.LineSegment(V(34.5, 4, 0), V(34.5, 0, 0)),  # 2
    Part.LineSegment(V(34.5, 10, 0), V(34.5, 6, 0)),  # 3
    Part.ArcOfCircle(Part.Circle(V(30.5, 6, 0), V(0, 0, 1), 4), math.radians(0), math.radians(90)),  # 4
    Part.LineSegment(V(30.5, 10, 0), V(34.5, 10, 0)),  # 5
], False)
sketch7.addConstraint([
    Sketcher.Constraint("Tangent", 0, 2, 1, 1),
    Sketcher.Constraint("Tangent", 1, 2, 2, 1),
    Sketcher.Constraint("Coincident", 2, 2, 0, 1),
    Sketcher.Constraint("Tangent", 3, 2, 4, 1),
    Sketcher.Constraint("Tangent", 4, 2, 5, 1),
    Sketcher.Constraint("Coincident", 5, 2, 3, 1),
    Sketcher.Constraint("Horizontal", 0),
    Sketcher.Constraint("Vertical", 2),
    Sketcher.Constraint("Vertical", 3),
    Sketcher.Constraint("Horizontal", 5),
    Sketcher.Constraint("Equal", 1, 4),
    Sketcher.Constraint("PointOnObject", 0, 2, -1),
    Sketcher.Constraint("Vertical", 1, 3, 4, 3),
    Sketcher.Constraint("Radius", 1, Q("4 mm")),
    Sketcher.Constraint("DistanceY", -1, 1, 4, 3, Q("6 mm")),
    Sketcher.Constraint("DistanceX", -1, 1, 1, 3, Q("30.487492 mm")),
])
pocket6 = body.newObject("PartDesign::Pocket", "Pocket005")
pocket6.Profile = sketch7
pocket6.Length = 10
pocket6.Reversed = True

doc.recompute()
